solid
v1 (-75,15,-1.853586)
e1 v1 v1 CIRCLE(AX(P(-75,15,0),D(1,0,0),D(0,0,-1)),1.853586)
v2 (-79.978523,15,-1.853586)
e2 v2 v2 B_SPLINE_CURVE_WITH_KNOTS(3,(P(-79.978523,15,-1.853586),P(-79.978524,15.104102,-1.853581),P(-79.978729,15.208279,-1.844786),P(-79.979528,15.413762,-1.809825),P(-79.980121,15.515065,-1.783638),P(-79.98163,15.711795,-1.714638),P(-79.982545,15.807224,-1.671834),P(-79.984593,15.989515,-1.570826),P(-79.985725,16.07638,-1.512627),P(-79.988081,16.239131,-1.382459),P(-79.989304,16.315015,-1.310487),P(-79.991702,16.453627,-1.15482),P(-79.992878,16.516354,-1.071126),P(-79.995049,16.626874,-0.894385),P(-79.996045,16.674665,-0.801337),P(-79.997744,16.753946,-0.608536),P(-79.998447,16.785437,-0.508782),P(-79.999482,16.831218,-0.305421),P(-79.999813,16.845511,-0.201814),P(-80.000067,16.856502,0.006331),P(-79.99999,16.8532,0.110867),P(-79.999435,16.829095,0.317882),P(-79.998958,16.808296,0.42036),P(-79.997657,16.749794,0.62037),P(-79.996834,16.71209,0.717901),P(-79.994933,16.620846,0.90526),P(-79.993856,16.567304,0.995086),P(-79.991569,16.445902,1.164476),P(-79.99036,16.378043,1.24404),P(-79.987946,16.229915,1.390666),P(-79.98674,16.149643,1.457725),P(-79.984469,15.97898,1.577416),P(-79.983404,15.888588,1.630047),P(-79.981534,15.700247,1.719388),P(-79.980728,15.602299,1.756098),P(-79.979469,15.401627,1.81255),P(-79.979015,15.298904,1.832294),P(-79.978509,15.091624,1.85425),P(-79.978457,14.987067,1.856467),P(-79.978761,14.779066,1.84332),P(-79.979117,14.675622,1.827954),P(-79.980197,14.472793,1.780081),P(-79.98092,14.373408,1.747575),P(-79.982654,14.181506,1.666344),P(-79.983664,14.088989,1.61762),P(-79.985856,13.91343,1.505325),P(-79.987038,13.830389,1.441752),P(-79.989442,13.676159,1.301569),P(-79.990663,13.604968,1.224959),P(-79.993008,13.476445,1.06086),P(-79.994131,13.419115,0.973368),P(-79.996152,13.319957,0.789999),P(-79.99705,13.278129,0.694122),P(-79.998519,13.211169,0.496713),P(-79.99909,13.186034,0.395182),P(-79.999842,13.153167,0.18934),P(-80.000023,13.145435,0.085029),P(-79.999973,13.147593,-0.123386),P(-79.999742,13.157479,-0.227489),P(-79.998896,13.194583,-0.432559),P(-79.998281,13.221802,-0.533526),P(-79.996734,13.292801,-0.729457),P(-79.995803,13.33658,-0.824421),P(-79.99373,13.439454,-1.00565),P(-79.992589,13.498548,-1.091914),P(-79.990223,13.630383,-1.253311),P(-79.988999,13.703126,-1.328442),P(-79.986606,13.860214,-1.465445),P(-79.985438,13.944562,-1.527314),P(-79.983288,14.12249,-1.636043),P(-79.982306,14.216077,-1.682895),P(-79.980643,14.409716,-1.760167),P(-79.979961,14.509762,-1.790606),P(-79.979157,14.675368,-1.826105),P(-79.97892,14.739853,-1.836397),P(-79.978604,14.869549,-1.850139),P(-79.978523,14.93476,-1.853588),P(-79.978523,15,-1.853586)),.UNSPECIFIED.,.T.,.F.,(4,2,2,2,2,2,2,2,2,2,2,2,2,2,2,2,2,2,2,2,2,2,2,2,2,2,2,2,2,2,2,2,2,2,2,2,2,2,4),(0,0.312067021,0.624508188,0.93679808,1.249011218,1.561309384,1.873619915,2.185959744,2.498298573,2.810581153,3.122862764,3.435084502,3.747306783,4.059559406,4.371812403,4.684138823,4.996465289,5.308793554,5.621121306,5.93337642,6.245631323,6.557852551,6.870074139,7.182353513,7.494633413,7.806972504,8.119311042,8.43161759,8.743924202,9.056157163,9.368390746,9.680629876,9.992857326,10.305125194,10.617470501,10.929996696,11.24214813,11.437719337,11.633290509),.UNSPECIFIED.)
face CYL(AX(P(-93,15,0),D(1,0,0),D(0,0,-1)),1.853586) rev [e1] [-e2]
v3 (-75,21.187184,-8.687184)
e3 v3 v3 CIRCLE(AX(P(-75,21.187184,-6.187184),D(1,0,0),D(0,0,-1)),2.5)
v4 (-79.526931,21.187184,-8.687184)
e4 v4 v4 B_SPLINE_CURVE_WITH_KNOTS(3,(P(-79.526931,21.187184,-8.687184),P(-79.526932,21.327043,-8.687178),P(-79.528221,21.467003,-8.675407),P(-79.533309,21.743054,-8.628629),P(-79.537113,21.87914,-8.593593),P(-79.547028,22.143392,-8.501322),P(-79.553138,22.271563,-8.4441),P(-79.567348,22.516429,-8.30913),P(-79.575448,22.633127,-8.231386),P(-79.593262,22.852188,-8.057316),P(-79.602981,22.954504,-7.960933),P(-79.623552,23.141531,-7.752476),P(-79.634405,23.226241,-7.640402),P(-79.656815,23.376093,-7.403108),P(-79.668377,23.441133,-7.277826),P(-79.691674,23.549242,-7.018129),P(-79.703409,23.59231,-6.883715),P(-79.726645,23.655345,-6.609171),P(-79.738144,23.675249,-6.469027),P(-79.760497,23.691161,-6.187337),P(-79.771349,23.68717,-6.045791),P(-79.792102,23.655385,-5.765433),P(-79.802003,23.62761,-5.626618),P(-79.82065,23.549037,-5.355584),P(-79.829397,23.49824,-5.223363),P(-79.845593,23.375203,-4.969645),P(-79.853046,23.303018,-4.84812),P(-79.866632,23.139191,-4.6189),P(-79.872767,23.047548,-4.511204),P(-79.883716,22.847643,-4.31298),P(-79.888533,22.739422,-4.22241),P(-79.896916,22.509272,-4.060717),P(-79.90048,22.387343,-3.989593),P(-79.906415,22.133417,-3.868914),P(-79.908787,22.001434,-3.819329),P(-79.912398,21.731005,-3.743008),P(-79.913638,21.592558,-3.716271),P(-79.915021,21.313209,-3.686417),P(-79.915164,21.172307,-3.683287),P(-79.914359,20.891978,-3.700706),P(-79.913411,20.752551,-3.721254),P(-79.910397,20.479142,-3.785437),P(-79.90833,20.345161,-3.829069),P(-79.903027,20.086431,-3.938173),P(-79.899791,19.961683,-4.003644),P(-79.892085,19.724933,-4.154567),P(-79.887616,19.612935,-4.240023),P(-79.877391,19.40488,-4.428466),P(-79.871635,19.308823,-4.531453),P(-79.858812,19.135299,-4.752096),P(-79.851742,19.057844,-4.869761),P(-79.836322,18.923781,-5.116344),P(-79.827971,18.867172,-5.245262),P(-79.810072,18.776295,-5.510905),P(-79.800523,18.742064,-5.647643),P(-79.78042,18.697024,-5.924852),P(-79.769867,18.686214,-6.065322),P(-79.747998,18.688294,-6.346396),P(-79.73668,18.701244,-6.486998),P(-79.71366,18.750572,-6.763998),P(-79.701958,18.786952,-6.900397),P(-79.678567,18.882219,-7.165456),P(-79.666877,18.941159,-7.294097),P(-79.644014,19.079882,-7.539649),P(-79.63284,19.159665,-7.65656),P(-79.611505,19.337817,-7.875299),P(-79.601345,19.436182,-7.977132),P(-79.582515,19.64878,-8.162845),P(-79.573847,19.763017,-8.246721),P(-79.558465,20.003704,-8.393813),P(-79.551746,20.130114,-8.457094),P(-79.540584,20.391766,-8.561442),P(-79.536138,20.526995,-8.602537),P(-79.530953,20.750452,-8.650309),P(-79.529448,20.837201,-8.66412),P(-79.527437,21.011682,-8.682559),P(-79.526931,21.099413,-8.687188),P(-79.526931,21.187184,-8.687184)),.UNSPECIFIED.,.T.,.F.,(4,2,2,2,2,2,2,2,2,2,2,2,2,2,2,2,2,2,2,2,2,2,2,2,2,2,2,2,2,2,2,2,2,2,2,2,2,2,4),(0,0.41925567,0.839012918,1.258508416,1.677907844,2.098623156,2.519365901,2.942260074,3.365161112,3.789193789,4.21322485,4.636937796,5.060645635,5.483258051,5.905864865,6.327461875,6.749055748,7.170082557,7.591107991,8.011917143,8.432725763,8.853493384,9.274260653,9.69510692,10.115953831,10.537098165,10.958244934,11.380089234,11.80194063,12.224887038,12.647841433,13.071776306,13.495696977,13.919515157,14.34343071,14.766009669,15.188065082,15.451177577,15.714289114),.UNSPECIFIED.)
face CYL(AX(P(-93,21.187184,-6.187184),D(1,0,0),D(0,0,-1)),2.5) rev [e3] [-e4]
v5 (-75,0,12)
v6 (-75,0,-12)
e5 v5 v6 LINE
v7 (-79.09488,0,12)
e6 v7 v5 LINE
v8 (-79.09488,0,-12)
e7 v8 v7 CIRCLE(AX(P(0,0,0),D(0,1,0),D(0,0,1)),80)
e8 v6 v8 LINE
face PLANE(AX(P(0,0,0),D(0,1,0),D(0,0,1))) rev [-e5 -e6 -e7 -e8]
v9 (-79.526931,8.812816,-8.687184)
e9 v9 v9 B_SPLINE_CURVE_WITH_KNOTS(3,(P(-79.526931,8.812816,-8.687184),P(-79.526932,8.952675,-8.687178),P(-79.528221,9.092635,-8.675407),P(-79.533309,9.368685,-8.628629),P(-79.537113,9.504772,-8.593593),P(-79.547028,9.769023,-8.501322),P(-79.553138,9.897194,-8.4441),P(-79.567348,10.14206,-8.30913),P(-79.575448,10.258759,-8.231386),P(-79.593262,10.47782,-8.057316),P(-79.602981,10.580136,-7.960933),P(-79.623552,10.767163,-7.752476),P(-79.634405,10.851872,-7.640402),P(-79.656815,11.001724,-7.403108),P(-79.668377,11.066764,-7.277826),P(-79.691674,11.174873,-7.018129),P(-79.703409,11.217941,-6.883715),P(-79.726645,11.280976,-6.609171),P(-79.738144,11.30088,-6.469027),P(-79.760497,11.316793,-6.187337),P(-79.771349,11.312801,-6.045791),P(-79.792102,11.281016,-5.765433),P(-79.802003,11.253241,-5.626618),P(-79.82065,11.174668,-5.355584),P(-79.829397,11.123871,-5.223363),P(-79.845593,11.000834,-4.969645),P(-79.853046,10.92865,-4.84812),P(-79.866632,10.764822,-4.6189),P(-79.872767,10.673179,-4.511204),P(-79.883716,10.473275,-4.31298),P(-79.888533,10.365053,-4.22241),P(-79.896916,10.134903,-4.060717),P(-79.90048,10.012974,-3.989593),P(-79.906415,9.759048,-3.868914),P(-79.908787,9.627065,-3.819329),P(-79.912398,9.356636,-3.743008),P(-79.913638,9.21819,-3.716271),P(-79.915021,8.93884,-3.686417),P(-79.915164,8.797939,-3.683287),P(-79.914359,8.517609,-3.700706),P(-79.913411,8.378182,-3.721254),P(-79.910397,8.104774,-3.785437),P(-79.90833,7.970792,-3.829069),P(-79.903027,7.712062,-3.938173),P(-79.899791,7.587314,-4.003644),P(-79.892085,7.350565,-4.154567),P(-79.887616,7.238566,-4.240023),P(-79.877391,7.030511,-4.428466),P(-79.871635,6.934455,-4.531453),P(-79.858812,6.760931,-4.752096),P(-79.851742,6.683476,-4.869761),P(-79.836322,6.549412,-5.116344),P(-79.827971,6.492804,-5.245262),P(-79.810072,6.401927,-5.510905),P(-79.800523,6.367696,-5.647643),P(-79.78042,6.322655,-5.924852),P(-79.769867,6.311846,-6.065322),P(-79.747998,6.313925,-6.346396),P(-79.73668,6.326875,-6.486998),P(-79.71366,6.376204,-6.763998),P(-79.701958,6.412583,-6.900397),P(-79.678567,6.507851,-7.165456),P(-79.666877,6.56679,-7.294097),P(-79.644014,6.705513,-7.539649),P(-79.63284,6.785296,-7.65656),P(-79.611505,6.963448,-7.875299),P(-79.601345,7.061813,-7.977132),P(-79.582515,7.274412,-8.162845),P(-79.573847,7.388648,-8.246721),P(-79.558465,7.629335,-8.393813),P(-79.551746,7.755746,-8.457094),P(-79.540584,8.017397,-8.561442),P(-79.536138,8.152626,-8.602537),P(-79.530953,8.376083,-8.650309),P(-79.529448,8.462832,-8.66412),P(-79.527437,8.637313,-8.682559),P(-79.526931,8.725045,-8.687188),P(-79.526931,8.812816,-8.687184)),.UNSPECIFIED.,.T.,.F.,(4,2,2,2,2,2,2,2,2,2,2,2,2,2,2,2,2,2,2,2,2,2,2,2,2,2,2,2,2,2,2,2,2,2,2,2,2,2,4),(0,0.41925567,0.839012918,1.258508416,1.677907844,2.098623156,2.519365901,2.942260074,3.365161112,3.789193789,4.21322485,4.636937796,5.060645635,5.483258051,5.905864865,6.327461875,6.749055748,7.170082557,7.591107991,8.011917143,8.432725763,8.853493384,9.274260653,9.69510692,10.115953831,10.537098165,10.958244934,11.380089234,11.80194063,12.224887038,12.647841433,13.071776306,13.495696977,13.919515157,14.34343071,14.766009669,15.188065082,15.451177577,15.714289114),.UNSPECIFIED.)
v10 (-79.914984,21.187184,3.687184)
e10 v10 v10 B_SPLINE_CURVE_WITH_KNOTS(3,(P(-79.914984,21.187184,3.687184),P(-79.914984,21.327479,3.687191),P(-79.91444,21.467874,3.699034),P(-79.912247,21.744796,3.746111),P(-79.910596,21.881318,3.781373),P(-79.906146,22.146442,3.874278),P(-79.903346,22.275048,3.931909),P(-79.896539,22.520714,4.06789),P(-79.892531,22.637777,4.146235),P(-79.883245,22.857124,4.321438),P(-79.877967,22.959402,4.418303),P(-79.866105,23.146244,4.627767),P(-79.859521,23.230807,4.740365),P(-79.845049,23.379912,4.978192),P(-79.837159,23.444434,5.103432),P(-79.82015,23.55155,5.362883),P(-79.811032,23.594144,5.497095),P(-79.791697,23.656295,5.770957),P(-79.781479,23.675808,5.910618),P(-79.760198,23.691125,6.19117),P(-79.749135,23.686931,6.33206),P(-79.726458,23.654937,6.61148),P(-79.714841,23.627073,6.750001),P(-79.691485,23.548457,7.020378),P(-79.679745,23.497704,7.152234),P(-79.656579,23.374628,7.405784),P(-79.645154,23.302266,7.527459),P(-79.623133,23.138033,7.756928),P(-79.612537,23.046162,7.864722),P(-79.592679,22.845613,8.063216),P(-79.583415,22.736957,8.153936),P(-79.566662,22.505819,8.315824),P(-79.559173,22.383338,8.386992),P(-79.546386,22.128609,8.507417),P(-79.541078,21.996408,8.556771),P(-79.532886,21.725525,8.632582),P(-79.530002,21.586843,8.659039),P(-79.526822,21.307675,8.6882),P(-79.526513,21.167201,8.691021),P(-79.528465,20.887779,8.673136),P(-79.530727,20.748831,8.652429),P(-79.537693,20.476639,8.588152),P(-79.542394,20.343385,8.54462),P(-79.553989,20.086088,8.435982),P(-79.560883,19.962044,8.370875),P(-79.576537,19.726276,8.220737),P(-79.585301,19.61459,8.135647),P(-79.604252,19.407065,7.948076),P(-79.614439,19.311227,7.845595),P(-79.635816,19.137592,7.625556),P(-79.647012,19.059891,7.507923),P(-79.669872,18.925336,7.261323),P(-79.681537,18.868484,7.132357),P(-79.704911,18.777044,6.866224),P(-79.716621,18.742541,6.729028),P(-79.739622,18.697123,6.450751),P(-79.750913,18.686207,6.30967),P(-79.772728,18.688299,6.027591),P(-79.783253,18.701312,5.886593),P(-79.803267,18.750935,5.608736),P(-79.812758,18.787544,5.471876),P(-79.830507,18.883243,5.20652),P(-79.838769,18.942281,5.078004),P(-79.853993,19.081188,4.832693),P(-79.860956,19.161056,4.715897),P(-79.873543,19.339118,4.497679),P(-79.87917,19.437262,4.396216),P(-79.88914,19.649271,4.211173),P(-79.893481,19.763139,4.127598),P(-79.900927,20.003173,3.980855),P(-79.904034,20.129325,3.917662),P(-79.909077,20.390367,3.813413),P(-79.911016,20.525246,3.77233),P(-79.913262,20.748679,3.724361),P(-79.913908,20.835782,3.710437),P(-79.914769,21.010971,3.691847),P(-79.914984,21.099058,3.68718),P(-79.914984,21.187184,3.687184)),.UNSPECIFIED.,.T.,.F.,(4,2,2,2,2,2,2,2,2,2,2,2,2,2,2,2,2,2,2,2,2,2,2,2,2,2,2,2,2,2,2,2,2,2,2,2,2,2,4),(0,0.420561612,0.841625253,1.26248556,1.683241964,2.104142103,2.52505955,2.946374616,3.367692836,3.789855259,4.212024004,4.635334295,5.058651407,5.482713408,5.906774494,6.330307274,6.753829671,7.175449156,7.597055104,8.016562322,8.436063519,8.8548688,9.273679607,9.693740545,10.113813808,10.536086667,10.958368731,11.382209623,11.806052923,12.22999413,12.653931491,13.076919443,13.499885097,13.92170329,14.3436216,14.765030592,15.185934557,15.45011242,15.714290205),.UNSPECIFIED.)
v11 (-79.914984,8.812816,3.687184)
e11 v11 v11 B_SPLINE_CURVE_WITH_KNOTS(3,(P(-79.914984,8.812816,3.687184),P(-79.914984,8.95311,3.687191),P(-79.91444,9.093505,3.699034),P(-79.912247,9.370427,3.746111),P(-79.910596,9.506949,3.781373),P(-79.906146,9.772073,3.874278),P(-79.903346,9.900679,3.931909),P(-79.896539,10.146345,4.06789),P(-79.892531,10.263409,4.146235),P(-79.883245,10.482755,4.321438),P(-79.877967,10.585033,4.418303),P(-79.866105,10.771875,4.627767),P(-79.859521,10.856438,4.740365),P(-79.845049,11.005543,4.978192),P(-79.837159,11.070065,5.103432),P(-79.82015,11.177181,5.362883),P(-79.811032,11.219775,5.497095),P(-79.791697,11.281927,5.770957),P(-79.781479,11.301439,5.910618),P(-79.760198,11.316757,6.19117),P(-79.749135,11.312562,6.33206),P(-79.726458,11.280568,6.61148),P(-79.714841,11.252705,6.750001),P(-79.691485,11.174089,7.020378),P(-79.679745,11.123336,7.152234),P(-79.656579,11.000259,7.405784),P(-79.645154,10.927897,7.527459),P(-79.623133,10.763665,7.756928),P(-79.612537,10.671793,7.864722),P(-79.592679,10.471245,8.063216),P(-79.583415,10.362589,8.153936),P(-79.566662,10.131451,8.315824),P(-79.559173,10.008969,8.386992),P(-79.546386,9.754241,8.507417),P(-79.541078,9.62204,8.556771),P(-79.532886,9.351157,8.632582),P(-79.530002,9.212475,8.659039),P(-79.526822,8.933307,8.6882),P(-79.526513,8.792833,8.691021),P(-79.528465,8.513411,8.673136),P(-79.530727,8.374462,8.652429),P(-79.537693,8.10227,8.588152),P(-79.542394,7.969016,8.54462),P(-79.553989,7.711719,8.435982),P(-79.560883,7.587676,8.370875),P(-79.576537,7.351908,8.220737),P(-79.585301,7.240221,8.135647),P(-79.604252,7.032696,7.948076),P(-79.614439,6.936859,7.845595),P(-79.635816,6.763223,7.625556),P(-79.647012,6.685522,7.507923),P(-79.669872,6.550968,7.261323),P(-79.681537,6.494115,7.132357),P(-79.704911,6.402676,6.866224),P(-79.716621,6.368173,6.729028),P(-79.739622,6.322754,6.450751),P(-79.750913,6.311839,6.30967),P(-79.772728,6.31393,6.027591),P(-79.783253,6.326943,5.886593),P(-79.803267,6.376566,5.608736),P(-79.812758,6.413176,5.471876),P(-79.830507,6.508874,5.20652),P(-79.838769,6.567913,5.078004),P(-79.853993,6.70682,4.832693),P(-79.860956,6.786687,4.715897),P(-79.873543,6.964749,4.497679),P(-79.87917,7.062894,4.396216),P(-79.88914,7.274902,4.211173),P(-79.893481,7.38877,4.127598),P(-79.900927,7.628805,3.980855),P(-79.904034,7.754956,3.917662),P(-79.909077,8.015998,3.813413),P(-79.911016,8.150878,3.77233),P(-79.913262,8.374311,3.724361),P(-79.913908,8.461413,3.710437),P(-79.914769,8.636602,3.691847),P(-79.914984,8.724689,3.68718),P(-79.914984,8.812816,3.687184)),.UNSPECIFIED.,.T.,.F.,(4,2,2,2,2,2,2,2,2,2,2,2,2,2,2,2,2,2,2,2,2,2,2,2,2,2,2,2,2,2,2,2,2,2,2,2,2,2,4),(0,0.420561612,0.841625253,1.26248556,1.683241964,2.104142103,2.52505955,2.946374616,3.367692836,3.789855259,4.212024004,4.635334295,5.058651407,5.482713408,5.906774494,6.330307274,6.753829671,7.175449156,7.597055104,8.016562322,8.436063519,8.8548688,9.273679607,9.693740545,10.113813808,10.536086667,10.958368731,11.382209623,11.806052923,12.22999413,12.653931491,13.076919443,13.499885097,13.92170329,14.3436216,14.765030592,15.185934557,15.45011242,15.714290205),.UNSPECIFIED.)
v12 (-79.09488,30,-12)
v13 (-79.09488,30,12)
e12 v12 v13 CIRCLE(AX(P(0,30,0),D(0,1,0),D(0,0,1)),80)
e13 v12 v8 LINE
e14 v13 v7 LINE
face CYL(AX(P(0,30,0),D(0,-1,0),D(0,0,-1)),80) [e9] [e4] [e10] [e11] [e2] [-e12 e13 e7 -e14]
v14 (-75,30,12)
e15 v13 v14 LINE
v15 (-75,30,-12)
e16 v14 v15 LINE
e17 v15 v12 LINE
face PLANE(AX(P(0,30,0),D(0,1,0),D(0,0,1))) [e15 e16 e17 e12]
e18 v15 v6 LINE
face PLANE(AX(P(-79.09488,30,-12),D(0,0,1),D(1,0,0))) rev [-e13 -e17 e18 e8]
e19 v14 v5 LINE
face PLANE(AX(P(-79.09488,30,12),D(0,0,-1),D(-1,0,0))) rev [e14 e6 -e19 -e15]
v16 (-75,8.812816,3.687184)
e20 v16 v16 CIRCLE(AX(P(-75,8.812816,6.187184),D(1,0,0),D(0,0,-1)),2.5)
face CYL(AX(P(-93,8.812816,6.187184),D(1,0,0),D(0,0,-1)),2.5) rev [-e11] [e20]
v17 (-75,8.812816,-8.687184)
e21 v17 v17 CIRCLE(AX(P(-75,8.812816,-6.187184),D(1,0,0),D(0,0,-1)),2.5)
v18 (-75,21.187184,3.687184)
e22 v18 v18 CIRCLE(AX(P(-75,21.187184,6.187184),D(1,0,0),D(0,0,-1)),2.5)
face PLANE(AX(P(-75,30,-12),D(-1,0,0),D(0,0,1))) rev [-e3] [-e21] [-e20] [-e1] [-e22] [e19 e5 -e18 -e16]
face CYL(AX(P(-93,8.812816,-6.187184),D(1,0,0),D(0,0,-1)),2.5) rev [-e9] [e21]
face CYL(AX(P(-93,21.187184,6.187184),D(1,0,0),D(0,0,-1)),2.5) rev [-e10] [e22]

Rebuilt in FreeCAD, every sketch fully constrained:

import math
import FreeCAD as App
import Part
import Sketcher

doc = App.newDocument("Part")
body = doc.addObject("PartDesign::Body", "Body")

sketch1 = body.newObject("Sketcher::SketchObject", "Sketch")
sketch1.AttachmentSupport = (doc.getObject("XZ_Plane"), [""])
sketch1.MapMode = "FlatFace"
sketch1.addGeometry([
    Part.LineSegment(App.Vector(-75, -12, 0), App.Vector(-79.09488, -12, 0)),
    Part.ArcOfCircle(Part.Circle(App.Vector(0, 0, 0), App.Vector(0, 0, 1), 80), math.radians(171.373073), math.radians(188.626927)),
    Part.LineSegment(App.Vector(-79.09488, 12, 0), App.Vector(-75, 12, 0)),
    Part.LineSegment(App.Vector(-75, 12, 0), App.Vector(-75, -12, 0)),
], False)
sketch1.addConstraint([
    Sketcher.Constraint("Coincident", 0, 2, 1, 2),
    Sketcher.Constraint("Coincident", 1, 1, 2, 1),
    Sketcher.Constraint("Coincident", 2, 2, 3, 1),
    Sketcher.Constraint("Coincident", 3, 2, 0, 1),
    Sketcher.Constraint("Horizontal", 0),
    Sketcher.Constraint("Horizontal", 2),
    Sketcher.Constraint("Vertical", 3),
    Sketcher.Constraint("Coincident", 1, 3, -1, 1),
    Sketcher.Constraint("Vertical", 0, 2, 1, 1),
    Sketcher.Constraint("Radius", 1, 80.0),
    Sketcher.Constraint("DistanceY", 3, 2, 3, 1, 24.0),
    Sketcher.Constraint("DistanceX", 2, 2, -1, 1, 75.0),
])
pad1 = body.newObject("PartDesign::Pad", "Pad")
pad1.Profile = sketch1
pad1.Length = 30
pad1.Reversed = True

sketch2 = body.newObject("Sketcher::SketchObject", "Sketch001")
sketch2.AttachmentSupport = (doc.getObject("YZ_Plane"), [""])
sketch2.MapMode = "FlatFace"
sketch2.AttachmentOffset = App.Placement(App.Vector(0, 0, -75), App.Rotation())
sketch2.addGeometry([
    Part.Circle(App.Vector(15, 0, 0), App.Vector(0, 0, 1), 1.853586),
    Part.Circle(App.Vector(21.187184, -6.187184, 0), App.Vector(0, 0, 1), 2.5),
    Part.Circle(App.Vector(8.812816, -6.187184, 0), App.Vector(0, 0, 1), 2.5),
    Part.Circle(App.Vector(8.812816, 6.187184, 0), App.Vector(0, 0, 1), 2.5),
    Part.Circle(App.Vector(21.187184, 6.187184, 0), App.Vector(0, 0, 1), 2.5),
], False)
sketch2.addConstraint([
    Sketcher.Constraint("Equal", 1, 2),
    Sketcher.Constraint("Equal", 2, 3),
    Sketcher.Constraint("Equal", 3, 4),
    Sketcher.Constraint("Symmetric", 2, 3, 3, 3, -1),
    Sketcher.Constraint("Symmetric", 1, 3, 4, 3, -1),
    Sketcher.Constraint("PointOnObject", 0, 3, -1),
    Sketcher.Constraint("Horizontal", 1, 3, 2, 3),
    Sketcher.Constraint("Diameter", 1, 5.0),
    Sketcher.Constraint("DistanceX", -1, 1, 0, 3, 15.0),
    Sketcher.Constraint("Diameter", 0, 3.707171),
    Sketcher.Constraint("DistanceX", 2, 3, 1, 3, 12.374369),
    Sketcher.Constraint("DistanceY", 2, 3, 3, 3, 12.374369),
    Sketcher.Constraint("DistanceX", -1, 1, 1, 3, 21.187184),
])
pocket1 = body.newObject("PartDesign::Pocket", "Pocket")
pocket1.Profile = sketch2
pocket1.Length = 18

doc.recompute()
